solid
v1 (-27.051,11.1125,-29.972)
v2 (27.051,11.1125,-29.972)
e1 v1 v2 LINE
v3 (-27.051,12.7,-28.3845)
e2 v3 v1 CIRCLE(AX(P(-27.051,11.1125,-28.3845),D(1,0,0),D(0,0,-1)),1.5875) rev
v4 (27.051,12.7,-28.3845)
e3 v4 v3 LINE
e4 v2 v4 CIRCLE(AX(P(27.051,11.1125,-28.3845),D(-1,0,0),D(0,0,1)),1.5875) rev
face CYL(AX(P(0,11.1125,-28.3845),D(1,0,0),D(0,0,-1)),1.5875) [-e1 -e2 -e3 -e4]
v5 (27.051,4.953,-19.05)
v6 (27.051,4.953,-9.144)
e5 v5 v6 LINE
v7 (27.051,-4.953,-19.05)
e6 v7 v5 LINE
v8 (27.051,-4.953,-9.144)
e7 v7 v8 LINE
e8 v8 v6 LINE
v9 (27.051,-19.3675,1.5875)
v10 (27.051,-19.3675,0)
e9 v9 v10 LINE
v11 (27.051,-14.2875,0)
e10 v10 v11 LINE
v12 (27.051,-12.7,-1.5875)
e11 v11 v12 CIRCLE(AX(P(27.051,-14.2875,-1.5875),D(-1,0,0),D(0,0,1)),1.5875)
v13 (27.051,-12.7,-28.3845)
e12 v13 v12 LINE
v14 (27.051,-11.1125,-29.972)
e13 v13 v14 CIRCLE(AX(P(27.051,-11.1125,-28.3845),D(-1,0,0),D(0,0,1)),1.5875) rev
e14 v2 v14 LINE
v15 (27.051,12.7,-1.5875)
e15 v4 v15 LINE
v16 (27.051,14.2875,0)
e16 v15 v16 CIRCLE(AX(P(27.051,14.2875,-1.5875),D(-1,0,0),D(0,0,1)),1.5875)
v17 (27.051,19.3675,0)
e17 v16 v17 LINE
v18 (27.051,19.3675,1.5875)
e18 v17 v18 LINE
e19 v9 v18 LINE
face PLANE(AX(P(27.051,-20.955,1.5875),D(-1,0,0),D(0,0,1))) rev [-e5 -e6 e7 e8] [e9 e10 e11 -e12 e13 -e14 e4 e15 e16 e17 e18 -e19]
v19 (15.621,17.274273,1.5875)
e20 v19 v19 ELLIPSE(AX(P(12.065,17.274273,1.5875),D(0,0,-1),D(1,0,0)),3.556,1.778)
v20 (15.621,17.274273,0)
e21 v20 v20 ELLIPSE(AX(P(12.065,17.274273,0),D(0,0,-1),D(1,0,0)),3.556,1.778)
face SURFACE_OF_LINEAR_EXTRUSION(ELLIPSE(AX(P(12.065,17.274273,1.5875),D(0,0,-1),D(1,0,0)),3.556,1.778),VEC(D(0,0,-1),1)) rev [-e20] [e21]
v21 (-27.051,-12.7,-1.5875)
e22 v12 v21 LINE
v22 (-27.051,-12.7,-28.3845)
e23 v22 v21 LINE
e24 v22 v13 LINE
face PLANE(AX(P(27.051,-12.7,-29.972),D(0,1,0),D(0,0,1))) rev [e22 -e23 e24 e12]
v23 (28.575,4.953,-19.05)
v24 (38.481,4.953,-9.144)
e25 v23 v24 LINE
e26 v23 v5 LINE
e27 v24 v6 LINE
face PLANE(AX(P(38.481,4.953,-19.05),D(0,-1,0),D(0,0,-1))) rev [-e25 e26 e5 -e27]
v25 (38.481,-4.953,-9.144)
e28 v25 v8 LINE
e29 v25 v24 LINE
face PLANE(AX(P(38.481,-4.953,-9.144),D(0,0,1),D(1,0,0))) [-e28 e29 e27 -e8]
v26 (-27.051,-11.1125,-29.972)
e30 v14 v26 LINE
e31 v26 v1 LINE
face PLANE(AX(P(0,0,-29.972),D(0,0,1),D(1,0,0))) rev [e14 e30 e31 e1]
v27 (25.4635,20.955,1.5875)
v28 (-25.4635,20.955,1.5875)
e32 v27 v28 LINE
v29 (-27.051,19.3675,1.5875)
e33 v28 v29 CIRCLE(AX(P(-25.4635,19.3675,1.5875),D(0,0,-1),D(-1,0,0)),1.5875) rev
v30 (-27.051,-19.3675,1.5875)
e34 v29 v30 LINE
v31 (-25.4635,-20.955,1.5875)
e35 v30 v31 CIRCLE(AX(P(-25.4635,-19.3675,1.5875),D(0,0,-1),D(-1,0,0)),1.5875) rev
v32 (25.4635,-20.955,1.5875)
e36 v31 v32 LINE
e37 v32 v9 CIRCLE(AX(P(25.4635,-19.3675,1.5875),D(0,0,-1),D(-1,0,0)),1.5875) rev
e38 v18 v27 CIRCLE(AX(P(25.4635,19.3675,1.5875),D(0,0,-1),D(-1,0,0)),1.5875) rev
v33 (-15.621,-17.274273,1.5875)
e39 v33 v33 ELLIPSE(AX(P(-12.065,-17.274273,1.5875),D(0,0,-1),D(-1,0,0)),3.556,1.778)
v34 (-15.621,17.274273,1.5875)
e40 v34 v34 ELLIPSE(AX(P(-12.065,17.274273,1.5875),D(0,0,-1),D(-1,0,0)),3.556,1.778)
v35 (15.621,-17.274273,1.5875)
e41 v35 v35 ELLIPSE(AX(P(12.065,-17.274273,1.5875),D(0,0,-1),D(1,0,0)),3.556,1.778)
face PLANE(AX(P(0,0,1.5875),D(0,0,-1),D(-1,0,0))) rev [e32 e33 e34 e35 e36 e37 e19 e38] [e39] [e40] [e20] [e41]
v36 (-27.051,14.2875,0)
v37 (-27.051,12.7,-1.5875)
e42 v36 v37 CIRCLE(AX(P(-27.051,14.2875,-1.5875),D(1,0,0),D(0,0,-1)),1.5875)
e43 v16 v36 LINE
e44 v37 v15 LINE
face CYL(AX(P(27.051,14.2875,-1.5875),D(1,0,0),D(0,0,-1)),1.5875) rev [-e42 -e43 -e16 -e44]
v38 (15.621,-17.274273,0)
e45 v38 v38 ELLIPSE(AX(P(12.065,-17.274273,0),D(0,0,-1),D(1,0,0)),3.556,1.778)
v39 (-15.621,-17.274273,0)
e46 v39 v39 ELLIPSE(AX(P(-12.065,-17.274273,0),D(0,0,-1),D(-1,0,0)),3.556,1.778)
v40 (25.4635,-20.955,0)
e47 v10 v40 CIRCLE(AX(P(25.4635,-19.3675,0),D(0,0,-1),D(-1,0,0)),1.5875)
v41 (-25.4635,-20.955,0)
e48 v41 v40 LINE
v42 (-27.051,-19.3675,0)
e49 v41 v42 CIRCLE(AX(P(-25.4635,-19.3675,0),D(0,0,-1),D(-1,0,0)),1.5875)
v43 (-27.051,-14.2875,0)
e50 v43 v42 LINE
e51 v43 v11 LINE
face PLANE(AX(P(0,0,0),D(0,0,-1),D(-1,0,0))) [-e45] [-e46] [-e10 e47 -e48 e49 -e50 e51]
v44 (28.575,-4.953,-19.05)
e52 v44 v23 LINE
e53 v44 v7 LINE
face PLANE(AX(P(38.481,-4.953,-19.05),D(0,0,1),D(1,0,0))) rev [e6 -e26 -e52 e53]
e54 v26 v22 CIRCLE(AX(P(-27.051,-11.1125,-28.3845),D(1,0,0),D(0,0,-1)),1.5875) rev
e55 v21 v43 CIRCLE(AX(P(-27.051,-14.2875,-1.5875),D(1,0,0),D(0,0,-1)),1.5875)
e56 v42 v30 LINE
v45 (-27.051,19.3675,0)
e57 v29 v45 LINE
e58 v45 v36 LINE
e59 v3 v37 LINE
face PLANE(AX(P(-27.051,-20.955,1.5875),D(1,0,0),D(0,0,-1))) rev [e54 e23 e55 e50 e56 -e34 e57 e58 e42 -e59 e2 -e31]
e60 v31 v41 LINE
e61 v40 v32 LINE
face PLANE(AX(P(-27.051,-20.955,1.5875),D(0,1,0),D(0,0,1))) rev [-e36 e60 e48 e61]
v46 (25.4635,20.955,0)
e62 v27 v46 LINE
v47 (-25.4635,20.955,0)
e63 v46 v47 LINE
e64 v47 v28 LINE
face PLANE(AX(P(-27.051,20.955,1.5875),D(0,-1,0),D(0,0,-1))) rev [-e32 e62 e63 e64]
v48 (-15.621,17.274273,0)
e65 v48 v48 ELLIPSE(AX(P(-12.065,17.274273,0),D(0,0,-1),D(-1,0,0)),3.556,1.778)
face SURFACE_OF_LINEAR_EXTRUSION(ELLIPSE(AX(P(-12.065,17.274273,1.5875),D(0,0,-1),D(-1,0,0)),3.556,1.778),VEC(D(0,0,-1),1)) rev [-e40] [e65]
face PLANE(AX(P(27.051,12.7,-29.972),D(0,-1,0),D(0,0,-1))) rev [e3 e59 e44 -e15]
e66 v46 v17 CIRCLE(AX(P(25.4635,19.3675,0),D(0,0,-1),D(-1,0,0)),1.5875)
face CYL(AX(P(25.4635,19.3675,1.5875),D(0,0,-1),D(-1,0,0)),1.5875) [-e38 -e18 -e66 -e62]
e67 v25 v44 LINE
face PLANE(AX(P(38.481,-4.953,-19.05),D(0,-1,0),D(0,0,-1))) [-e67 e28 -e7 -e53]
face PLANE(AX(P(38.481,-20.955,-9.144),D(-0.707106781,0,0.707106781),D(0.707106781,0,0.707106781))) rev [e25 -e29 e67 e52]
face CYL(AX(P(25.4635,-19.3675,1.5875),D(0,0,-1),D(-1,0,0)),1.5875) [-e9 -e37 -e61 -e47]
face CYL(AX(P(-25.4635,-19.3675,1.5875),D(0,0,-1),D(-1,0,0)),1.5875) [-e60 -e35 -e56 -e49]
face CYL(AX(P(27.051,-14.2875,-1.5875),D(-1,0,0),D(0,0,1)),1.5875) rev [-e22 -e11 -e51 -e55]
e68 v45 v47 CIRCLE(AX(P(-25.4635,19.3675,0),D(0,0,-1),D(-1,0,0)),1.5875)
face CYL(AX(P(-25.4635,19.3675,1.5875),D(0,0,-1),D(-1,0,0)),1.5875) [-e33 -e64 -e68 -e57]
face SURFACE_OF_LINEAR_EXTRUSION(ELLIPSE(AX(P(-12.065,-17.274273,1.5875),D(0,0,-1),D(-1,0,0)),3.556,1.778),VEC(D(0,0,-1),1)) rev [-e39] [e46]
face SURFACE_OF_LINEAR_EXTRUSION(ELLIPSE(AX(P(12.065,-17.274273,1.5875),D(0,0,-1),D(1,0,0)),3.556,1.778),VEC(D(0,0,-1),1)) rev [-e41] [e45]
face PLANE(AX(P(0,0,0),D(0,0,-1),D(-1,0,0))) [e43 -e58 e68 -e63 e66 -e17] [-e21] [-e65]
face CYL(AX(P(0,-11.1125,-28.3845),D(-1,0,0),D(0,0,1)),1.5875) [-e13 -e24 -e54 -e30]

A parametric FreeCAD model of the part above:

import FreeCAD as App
import Part
import Sketcher

V = App.Vector
Q = App.Units.Quantity


def edges_at(feature, points):
    """Names of the edges that pass closest to the given points."""
    edges = feature.Shape.Edges
    near = lambda p: min(range(len(edges)), key=lambda i: edges[i].distToShape(Part.Vertex(*p))[0])
    return sorted({f"Edge{near(p) + 1}" for p in points})

doc = App.newDocument("Part")
body = doc.addObject("PartDesign::Body", "Body")

# Sketch on XY plane
sketch1 = body.newObject("Sketcher::SketchObject", "Sketch")
sketch1.AttachmentSupport = (doc.getObject("XY_Plane"), [""])
sketch1.MapMode = "FlatFace"
sketch1.addGeometry([
    Part.LineSegment(V(-27, 21, 0), V(-27, -21, 0)),
    Part.LineSegment(V(-27, -21, 0), V(27, -21, 0)),
    Part.LineSegment(V(27, -21, 0), V(27, 21, 0)),
    Part.LineSegment(V(27, 21, 0), V(-27, 21, 0)),
], False)
sketch1.addConstraint([
    Sketcher.Constraint("Coincident", 0, 2, 1, 1),
    Sketcher.Constraint("Coincident", 1, 2, 2, 1),
    Sketcher.Constraint("Coincident", 2, 2, 3, 1),
    Sketcher.Constraint("Coincident", 3, 2, 0, 1),
    Sketcher.Constraint("Vertical", 0),
    Sketcher.Constraint("Horizontal", 1),
    Sketcher.Constraint("Vertical", 2),
    Sketcher.Constraint("Horizontal", 3),
    Sketcher.Constraint("Symmetric", 0, 2, 2, 2, -1, 1),
    Sketcher.Constraint("DistanceX", 1, 1, 1, 2, Q("2.13 in")),
    Sketcher.Constraint("DistanceY", 0, 2, 0, 1, Q("1.65 in")),
])
pad1 = body.newObject("PartDesign::Pad", "Pad")
pad1.Profile = sketch1
pad1.Length = Q("0.0625 in")
doc.recompute()

fillet = body.newObject("PartDesign::Fillet", "Fillet")
fillet.Base = (pad1, edges_at(pad1, [
    (27.051, -20.955, 0.794),
    (-27.051, -20.955, 0.794),
    (-27.051, 20.955, 0.794),
    (27.051, 20.955, 0.794),
]))
fillet.Radius = Q("0.0625 in")

# Sketch on XY plane
sketch2 = body.newObject("Sketcher::SketchObject", "Sketch001")
sketch2.AttachmentSupport = (doc.getObject("XY_Plane"), [""])
sketch2.MapMode = "FlatFace"
sketch2.addGeometry([
    Part.LineSegment(V(27, 13, 0), V(27, -13, 0)),
    Part.LineSegment(V(27, -13, 0), V(-27, -13, 0)),
    Part.LineSegment(V(-27, -13, 0), V(-27, 13, 0)),
    Part.LineSegment(V(-27, 13, 0), V(27, 13, 0)),
], False)
sketch2.addConstraint([
    Sketcher.Constraint("Coincident", 0, 2, 1, 1),
    Sketcher.Constraint("Coincident", 1, 2, 2, 1),
    Sketcher.Constraint("Coincident", 2, 2, 3, 1),
    Sketcher.Constraint("Coincident", 3, 2, 0, 1),
    Sketcher.Constraint("Vertical", 0),
    Sketcher.Constraint("Horizontal", 1),
    Sketcher.Constraint("Vertical", 2),
    Sketcher.Constraint("Horizontal", 3),
    Sketcher.Constraint("Symmetric", 0, 2, 2, 2, -1, 1),
    Sketcher.Constraint("DistanceY", 0, 2, 0, 1, Q("1 in")),
    Sketcher.Constraint("DistanceX", 1, 2, 1, 1, Q("2.13 in")),
])
pad2 = body.newObject("PartDesign::Pad", "Pad001")
pad2.Profile = sketch2
pad2.Length = Q("1.18 in")
pad2.Reversed = True
doc.recompute()

fillet2 = body.newObject("PartDesign::Fillet", "Fillet001")
fillet2.Base = (pad2, edges_at(pad2, [(0, 12.7, 0), (0, -12.7, 0)]))
fillet2.Radius = Q("0.0625 in")
doc.recompute()

fillet3 = body.newObject("PartDesign::Fillet", "Fillet002")
fillet3.Base = (fillet2, edges_at(fillet2, [(0, 12.7, -29.972), (0, -12.7, -29.972)]))
fillet3.Radius = Q("0.0625 in")

# Sketch on XY plane
sketch3 = body.newObject("Sketcher::SketchObject", "Sketch002")
sketch3.AttachmentSupport = (doc.getObject("XY_Plane"), [""])
sketch3.MapMode = "FlatFace"
sketch3.addGeometry([
    Part.Ellipse(V(15.621, -17.274273, 0), V(12.065, -15.496273, 0), V(12.065, -17.274273, 0)),
    Part.Ellipse(V(-15.621, -17.274273, 0), V(-12.065, -19.052273, 0), V(-12.065, -17.274273, 0)),
    Part.Ellipse(V(-15.621, 17.274273, 0), V(-12.065, 15.496273, 0), V(-12.065, 17.274273, 0)),
    Part.Ellipse(V(15.621, 17.274273, 0), V(12.065, 19.052273, 0), V(12.065, 17.274273, 0)),
], False)
sketch3.addConstraint([
    Sketcher.Constraint("Block", 0),
    Sketcher.Constraint("Block", 1),
    Sketcher.Constraint("Block", 2),
    Sketcher.Constraint("Block", 3),
])
pocket1 = body.newObject("PartDesign::Pocket", "Pocket")
pocket1.Profile = sketch3
pocket1.Type = "ThroughAll"
pocket1.Reversed = True

# Sketch on YZ plane
sketch4 = body.newObject("Sketcher::SketchObject", "Sketch003")
sketch4.AttachmentSupport = (doc.getObject("YZ_Plane"), [""])
sketch4.MapMode = "FlatFace"
sketch4.AttachmentOffset = App.Placement(V(0, 0, 1.065 * 25.4), App.Rotation())
sketch4.addGeometry([
    Part.LineSegment(V(5, -9, 0), V(-5, -9, 0)),
    Part.LineSegment(V(-5, -9, 0), V(-5, -19, 0)),
    Part.LineSegment(V(-5, -19, 0), V(5, -19, 0)),
    Part.LineSegment(V(5, -19, 0), V(5, -9, 0)),
], False)
sketch4.addConstraint([
    Sketcher.Constraint("Coincident", 0, 2, 1, 1),
    Sketcher.Constraint("Coincident", 1, 2, 2, 1),
    Sketcher.Constraint("Coincident", 2, 2, 3, 1),
    Sketcher.Constraint("Coincident", 3, 2, 0, 1),
    Sketcher.Constraint("Horizontal", 0),
    Sketcher.Constraint("Vertical", 1),
    Sketcher.Constraint("Horizontal", 2),
    Sketcher.Constraint("Vertical", 3),
    Sketcher.Constraint("Equal", 2, 1),
    Sketcher.Constraint("DistanceX", 0, 2, 0, 1, Q("0.39 in")),
    Sketcher.Constraint("DistanceY", 0, 2, -1, 1, Q("0.36 in")),
    Sketcher.Constraint("DistanceX", 0, 2, -1, 1, Q("0.195 in")),
])
pad3 = body.newObject("PartDesign::Pad", "Pad002")
pad3.Profile = sketch4
pad3.Length = Q("0.45 in")

# Sketch on XZ plane
sketch5 = body.newObject("Sketcher::SketchObject", "Sketch004")
sketch5.AttachmentSupport = (doc.getObject("XZ_Plane"), [""])
sketch5.MapMode = "FlatFace"
sketch5.AttachmentOffset = App.Placement(V(0, 0, -0.195 * 25.4), App.Rotation())
sketch5.addGeometry([
    Part.LineSegment(V(29, -19, 0), V(38, -9, 0)),
    Part.LineSegment(V(38, -9, 0), V(38, -19, 0)),
    Part.LineSegment(V(38, -19, 0), V(29, -19, 0)),
], False)
sketch5.addConstraint([
    Sketcher.Constraint("Coincident", 0, 2, 1, 1),
    Sketcher.Constraint("Coincident", 1, 2, 2, 1),
    Sketcher.Constraint("Coincident", 2, 2, 0, 1),
    Sketcher.Constraint("Vertical", 1),
    Sketcher.Constraint("Horizontal", 2),
    Sketcher.Constraint("Equal", 2, 1),
    Sketcher.Constraint("DistanceX", 2, 2, 2, 1, Q("0.39 in")),
    Sketcher.Constraint("DistanceY", 0, 2, -1, 1, Q("0.36 in")),
    Sketcher.Constraint("DistanceX", -1, 1, 0, 2, Q("1.515 in")),
])
pocket2 = body.newObject("PartDesign::Pocket", "Pocket001")
pocket2.Profile = sketch5
pocket2.Type = "ThroughAll"
pocket2.Reversed = True

doc.recompute()
